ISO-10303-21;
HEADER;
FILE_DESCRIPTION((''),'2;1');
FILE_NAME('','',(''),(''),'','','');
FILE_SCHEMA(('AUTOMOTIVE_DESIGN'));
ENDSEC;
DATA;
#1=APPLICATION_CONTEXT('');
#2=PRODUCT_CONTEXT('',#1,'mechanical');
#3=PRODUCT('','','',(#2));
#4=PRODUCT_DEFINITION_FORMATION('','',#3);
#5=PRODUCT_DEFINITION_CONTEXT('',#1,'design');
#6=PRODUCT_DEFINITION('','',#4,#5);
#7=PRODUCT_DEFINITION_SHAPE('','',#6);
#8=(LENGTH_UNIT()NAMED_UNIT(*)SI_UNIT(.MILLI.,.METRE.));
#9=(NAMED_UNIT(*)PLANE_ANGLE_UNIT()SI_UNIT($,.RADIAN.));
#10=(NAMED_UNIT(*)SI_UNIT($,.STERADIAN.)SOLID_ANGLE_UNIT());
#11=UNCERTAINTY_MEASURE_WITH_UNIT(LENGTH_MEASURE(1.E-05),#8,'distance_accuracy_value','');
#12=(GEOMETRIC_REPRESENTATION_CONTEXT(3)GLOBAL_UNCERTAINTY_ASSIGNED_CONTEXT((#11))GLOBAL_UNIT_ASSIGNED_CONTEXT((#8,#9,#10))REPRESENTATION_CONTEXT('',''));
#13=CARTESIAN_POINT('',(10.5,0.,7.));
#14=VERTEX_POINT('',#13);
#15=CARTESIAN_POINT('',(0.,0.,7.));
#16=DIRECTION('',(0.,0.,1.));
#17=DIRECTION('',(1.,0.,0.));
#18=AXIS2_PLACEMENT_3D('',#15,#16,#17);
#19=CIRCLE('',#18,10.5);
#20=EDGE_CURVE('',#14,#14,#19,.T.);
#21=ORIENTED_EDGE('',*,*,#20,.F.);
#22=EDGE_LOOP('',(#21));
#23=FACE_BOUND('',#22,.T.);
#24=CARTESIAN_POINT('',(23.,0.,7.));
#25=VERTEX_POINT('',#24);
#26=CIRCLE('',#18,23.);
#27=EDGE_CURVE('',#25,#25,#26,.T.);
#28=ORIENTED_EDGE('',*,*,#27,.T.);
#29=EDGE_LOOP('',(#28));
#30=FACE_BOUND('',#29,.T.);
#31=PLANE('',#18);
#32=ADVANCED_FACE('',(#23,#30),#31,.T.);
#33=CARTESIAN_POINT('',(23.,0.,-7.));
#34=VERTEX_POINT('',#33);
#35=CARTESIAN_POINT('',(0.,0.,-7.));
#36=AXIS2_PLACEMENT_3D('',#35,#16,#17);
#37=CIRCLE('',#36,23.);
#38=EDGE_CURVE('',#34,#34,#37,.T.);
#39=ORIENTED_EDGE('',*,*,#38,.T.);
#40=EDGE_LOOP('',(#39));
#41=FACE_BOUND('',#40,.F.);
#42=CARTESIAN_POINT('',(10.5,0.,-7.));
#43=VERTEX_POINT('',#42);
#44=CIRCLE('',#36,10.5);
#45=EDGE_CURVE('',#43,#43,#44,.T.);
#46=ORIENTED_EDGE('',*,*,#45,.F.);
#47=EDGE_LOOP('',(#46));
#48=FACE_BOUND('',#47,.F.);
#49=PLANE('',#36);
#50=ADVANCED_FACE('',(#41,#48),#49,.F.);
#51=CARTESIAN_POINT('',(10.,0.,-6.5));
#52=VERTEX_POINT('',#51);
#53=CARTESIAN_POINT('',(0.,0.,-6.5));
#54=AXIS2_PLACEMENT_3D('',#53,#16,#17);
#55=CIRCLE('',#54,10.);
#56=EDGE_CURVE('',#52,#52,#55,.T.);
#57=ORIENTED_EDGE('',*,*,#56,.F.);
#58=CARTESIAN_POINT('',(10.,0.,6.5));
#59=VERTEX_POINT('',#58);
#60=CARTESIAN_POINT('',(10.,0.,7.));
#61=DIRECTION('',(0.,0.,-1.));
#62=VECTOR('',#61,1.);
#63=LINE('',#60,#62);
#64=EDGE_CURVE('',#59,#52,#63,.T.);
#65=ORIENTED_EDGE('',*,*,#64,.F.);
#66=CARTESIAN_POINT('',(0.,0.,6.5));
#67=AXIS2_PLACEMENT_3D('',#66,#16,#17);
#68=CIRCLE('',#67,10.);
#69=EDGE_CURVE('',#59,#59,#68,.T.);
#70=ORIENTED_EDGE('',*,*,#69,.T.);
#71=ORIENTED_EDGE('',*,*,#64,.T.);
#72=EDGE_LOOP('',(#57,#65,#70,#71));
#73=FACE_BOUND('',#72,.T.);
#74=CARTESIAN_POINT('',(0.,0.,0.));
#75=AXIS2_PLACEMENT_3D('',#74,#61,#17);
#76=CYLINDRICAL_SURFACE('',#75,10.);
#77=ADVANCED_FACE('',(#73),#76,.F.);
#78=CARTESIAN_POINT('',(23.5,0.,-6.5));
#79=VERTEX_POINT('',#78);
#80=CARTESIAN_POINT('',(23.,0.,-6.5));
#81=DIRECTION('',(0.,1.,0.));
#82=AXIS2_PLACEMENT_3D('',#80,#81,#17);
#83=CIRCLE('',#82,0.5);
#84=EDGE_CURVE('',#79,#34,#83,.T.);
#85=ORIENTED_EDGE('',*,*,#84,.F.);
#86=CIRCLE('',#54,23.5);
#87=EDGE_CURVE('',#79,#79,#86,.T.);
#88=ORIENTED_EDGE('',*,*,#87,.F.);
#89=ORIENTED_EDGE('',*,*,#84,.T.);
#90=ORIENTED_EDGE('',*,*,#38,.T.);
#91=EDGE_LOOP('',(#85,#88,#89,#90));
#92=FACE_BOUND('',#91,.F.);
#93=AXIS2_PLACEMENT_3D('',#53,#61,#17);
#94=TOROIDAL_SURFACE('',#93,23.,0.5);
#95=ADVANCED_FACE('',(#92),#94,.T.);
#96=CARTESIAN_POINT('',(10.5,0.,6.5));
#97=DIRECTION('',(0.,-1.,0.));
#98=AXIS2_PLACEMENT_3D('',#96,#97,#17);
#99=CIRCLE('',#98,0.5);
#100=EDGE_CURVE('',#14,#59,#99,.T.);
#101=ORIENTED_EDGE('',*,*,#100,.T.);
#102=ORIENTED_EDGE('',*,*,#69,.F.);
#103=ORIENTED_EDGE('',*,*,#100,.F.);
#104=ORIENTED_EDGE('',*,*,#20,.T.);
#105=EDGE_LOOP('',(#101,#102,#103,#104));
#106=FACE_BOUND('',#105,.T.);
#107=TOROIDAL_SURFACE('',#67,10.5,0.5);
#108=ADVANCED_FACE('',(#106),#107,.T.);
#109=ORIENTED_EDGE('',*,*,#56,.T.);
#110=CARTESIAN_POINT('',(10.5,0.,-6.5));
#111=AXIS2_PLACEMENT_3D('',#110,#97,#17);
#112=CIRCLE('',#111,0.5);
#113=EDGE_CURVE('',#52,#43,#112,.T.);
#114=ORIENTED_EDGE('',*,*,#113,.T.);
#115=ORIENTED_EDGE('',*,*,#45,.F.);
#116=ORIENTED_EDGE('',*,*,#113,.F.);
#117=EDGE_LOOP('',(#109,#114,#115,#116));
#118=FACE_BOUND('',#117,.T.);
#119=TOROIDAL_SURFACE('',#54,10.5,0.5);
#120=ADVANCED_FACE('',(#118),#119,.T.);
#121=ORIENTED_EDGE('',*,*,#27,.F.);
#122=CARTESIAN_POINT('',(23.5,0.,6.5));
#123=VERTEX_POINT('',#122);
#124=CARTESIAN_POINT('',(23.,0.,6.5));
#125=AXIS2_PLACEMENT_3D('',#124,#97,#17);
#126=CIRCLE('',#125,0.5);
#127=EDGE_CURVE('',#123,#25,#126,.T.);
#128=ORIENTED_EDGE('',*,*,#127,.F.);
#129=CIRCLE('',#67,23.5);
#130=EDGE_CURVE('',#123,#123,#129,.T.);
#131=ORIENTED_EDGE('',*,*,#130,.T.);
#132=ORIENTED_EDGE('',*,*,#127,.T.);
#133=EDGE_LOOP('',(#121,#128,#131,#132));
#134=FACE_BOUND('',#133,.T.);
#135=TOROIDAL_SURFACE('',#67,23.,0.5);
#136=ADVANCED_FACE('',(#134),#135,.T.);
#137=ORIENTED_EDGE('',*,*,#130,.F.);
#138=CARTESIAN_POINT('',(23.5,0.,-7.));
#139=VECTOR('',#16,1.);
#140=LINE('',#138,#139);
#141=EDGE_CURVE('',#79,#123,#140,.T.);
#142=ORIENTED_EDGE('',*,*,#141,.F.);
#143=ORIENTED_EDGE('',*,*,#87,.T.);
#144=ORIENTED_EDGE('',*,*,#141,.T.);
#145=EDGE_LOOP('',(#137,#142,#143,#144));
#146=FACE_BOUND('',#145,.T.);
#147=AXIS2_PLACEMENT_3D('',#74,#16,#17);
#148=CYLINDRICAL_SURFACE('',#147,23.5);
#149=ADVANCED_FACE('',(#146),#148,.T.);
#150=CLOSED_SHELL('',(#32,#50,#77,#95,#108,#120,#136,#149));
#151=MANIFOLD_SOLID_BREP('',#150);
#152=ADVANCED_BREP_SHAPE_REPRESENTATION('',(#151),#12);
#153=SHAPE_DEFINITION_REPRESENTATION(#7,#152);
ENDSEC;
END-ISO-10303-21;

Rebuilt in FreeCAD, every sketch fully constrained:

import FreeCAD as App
import Part
import Sketcher
Q = App.Units.Quantity

doc = App.newDocument("Part")
body = doc.addObject("PartDesign::Body", "Body")

sketch1 = body.newObject("Sketcher::SketchObject", "Sketch")
sketch1.AttachmentSupport = (doc.getObject("XY_Plane"), [""])
sketch1.MapMode = "FlatFace"
sketch1.addGeometry(Part.Circle(App.Vector(0, 0, 0), App.Vector(0, 0, 1), 24), False)
sketch1.addGeometry(Part.Circle(App.Vector(0, 0, 0), App.Vector(0, 0, 1), 10), False)
sketch1.addConstraint(Sketcher.Constraint("Coincident", 0, 3, -1, 1))
sketch1.addConstraint(Sketcher.Constraint("Coincident", 1, 3, -1, 1))
sketch1.addConstraint(Sketcher.Constraint("Diameter", 0, Q("47 mm")))
sketch1.addConstraint(Sketcher.Constraint("Diameter", 1, Q("20 mm")))
pad1 = body.newObject("PartDesign::Pad", "Pad")
pad1.Profile = sketch1
pad1.Length = 14
pad1.Midplane = True
doc.recompute()

fillet = body.newObject("PartDesign::Fillet", "Fillet")
fillet.Base = (pad1, ["Edge1"])
fillet.UseAllEdges = True
fillet.Radius = 0.5

doc.recompute()
